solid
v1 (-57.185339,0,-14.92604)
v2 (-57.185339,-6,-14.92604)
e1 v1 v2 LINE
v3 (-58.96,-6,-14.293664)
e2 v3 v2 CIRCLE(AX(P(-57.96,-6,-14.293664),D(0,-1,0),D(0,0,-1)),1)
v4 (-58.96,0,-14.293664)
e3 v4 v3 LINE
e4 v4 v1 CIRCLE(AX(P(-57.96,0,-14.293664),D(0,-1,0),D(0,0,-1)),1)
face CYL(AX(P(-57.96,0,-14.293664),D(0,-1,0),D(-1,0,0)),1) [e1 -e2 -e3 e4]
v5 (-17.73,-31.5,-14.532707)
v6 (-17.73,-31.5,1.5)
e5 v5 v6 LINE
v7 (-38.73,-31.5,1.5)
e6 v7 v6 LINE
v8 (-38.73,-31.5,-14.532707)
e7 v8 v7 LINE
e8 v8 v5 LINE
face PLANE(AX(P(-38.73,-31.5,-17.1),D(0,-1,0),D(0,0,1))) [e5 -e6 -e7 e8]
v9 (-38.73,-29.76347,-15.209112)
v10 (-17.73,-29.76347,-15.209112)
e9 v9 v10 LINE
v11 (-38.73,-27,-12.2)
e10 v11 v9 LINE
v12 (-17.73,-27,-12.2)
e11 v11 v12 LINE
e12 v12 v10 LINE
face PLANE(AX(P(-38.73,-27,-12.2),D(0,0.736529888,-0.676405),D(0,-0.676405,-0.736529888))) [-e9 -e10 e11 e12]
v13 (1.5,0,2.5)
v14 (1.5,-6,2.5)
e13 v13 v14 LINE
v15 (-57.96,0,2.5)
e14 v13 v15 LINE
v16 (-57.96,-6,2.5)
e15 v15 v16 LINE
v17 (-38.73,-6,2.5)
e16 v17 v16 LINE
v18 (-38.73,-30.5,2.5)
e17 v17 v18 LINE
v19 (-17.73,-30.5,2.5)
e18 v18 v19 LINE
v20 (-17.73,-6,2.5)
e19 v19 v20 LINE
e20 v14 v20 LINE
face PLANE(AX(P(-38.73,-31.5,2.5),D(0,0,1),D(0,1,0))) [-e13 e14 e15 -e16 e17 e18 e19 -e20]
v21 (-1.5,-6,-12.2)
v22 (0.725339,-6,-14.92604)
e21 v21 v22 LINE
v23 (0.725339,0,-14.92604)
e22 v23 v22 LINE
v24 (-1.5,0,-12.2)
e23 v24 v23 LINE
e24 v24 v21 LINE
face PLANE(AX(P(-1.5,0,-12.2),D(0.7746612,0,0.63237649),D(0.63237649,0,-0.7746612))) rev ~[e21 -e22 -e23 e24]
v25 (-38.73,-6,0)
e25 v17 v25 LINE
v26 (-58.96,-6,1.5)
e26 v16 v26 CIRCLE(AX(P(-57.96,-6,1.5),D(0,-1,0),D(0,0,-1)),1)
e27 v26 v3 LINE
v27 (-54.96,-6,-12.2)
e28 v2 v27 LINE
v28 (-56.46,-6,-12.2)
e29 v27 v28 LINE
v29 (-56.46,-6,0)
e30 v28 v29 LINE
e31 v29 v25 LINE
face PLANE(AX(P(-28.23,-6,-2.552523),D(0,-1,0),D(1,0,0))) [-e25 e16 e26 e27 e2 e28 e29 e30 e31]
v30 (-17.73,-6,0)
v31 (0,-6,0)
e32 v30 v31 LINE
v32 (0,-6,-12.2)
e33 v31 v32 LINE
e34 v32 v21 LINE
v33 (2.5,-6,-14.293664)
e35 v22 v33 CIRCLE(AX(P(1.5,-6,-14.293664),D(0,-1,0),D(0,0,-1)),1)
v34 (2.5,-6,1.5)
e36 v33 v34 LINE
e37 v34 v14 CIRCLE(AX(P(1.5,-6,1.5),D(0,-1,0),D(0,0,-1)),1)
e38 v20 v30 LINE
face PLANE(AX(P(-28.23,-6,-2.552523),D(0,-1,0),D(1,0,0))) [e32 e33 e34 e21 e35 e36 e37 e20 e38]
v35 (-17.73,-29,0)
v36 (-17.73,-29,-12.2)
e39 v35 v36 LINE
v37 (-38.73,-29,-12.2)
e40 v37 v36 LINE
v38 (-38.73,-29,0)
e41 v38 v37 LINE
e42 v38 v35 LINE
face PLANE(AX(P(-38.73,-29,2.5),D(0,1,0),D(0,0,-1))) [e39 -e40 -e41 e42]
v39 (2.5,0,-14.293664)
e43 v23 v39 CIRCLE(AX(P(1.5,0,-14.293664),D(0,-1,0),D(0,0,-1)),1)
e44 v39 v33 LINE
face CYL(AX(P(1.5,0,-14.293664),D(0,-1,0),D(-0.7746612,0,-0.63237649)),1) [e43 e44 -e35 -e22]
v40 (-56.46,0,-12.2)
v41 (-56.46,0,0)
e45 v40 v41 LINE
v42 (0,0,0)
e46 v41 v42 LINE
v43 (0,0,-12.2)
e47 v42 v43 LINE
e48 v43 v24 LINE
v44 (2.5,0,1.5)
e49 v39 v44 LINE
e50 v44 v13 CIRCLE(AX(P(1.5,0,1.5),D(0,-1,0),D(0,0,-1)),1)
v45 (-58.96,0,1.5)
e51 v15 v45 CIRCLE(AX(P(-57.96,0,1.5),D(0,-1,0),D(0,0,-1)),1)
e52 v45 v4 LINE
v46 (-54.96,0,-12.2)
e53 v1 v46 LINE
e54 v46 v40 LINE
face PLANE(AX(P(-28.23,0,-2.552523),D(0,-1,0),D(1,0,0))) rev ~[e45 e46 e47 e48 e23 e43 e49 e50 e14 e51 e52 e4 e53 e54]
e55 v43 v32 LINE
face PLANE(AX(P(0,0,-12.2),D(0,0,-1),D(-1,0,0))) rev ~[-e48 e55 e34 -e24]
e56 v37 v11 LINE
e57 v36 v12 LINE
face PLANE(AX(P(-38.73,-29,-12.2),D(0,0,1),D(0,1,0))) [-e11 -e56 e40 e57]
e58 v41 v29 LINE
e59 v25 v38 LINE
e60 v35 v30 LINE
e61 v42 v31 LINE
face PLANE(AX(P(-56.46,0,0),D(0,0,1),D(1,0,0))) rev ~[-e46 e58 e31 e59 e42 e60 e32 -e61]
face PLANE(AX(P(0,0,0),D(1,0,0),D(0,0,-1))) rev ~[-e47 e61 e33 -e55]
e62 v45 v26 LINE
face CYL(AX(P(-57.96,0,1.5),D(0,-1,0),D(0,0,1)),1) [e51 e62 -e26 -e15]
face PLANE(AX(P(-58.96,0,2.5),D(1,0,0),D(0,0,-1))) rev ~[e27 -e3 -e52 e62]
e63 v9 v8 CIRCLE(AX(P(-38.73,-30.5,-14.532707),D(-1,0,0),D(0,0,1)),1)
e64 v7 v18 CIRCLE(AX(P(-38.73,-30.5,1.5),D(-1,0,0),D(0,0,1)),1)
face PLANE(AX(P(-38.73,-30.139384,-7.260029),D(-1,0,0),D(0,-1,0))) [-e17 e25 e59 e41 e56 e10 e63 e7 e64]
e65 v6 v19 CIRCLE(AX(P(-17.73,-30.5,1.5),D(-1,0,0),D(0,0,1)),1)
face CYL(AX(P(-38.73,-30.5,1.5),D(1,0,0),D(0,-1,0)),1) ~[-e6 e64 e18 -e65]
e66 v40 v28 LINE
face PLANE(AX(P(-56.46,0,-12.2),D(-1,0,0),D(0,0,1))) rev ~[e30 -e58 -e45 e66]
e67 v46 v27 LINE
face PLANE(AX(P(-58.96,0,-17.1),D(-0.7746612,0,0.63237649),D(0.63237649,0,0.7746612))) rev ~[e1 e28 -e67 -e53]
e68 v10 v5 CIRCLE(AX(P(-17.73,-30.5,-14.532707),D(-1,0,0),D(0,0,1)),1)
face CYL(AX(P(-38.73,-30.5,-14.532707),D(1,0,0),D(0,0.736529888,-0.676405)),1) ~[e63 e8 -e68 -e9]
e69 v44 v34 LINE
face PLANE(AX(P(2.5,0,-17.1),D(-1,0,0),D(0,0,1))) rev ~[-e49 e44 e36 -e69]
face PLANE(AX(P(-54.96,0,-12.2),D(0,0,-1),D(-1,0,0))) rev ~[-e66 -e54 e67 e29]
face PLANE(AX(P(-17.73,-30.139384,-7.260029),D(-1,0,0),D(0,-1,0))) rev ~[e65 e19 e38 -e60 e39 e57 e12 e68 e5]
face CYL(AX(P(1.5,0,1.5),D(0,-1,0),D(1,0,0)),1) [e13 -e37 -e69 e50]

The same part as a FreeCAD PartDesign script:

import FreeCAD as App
import Part
import Sketcher


def edges_at(feature, points):
    """Names of the edges that pass closest to the given points."""
    edges = feature.Shape.Edges
    near = lambda p: min(range(len(edges)), key=lambda i: edges[i].distToShape(Part.Vertex(*p))[0])
    return sorted({f"Edge{near(p) + 1}" for p in points})

doc = App.newDocument("Part")
body = doc.addObject("PartDesign::Body", "Body")

sketch1 = body.newObject("Sketcher::SketchObject", "Sketch")
sketch1.AttachmentSupport = (doc.getObject("XZ_Plane"), [""])
sketch1.MapMode = "FlatFace"
sketch1.addGeometry(Part.LineSegment(App.Vector(0, 0, 0), App.Vector(0, -12.2, 0)), False)
sketch1.addGeometry(Part.LineSegment(App.Vector(0, -12.2, 0), App.Vector(-1.5, -12.2, 0)), False)
sketch1.addGeometry(Part.LineSegment(App.Vector(-1.5, -12.2, 0), App.Vector(2.5, -17.1, 0)), False)
sketch1.addGeometry(Part.LineSegment(App.Vector(2.5, -17.1, 0), App.Vector(2.5, 2.5, 0)), False)
sketch1.addGeometry(Part.LineSegment(App.Vector(2.5, 2.5, 0), App.Vector(-58.96, 2.5, 0)), False)
sketch1.addGeometry(Part.LineSegment(App.Vector(-58.96, 2.5, 0), App.Vector(-58.96, -17.1, 0)), False)
sketch1.addGeometry(Part.LineSegment(App.Vector(-58.96, -17.1, 0), App.Vector(-54.96, -12.2, 0)), False)
sketch1.addGeometry(Part.LineSegment(App.Vector(-54.96, -12.2, 0), App.Vector(-56.46, -12.2, 0)), False)
sketch1.addGeometry(Part.LineSegment(App.Vector(-56.46, -12.2, 0), App.Vector(-56.46, 0, 0)), False)
sketch1.addGeometry(Part.LineSegment(App.Vector(-56.46, 0, 0), App.Vector(0, 0, 0)), False)
sketch1.addConstraint(Sketcher.Constraint("Coincident", 0, 2, 1, 1))
sketch1.addConstraint(Sketcher.Constraint("Coincident", 1, 2, 2, 1))
sketch1.addConstraint(Sketcher.Constraint("Coincident", 2, 2, 3, 1))
sketch1.addConstraint(Sketcher.Constraint("Coincident", 3, 2, 4, 1))
sketch1.addConstraint(Sketcher.Constraint("Coincident", 4, 2, 5, 1))
sketch1.addConstraint(Sketcher.Constraint("Coincident", 5, 2, 6, 1))
sketch1.addConstraint(Sketcher.Constraint("Coincident", 6, 2, 7, 1))
sketch1.addConstraint(Sketcher.Constraint("Coincident", 7, 2, 8, 1))
sketch1.addConstraint(Sketcher.Constraint("Coincident", 8, 2, 9, 1))
sketch1.addConstraint(Sketcher.Constraint("Coincident", 9, 2, 0, 1))
sketch1.addConstraint(Sketcher.Constraint("Vertical", 0))
sketch1.addConstraint(Sketcher.Constraint("Horizontal", 1))
sketch1.addConstraint(Sketcher.Constraint("Vertical", 3))
sketch1.addConstraint(Sketcher.Constraint("Horizontal", 4))
sketch1.addConstraint(Sketcher.Constraint("Vertical", 5))
sketch1.addConstraint(Sketcher.Constraint("Horizontal", 7))
sketch1.addConstraint(Sketcher.Constraint("Vertical", 8))
sketch1.addConstraint(Sketcher.Constraint("Horizontal", 9))
sketch1.addConstraint(Sketcher.Constraint("Coincident", 9, 2, -1, 1))
sketch1.addConstraint(Sketcher.Constraint("Horizontal", 2, 2, 5, 2))
sketch1.addConstraint(Sketcher.Constraint("Horizontal", 1, 2, 6, 2))
sketch1.addConstraint(Sketcher.Constraint("Equal", 1, 7))
sketch1.addConstraint(Sketcher.Constraint("Equal", 2, 6))
sketch1.addConstraint(Sketcher.Constraint("DistanceX", 1, 2, 1, 1, 1.5))
sketch1.addConstraint(Sketcher.Constraint("DistanceY", 0, 2, 0, 1, 12.2))
sketch1.addConstraint(Sketcher.Constraint("DistanceY", 3, 1, 3, 2, 19.6))
sketch1.addConstraint(Sketcher.Constraint("DistanceX", 1, 2, 2, 2, 4.0))
sketch1.addConstraint(Sketcher.Constraint("DistanceX", 4, 2, 4, 1, 61.46))
sketch1.addConstraint(Sketcher.Constraint("DistanceY", 2, 2, -1, 1, 17.1))
pad1 = body.newObject("PartDesign::Pad", "Pad")
pad1.Profile = sketch1
pad1.Length = 6
doc.recompute()

fillet = body.newObject("PartDesign::Fillet", "Fillet")
fillet.Base = (pad1, edges_at(pad1, [
    (-58.96, -3, -17.1),
    (2.5, -3, -17.1),
    (-58.96, -3, 2.5),
    (2.5, -3, 2.5),
]))
fillet.Radius = 1

sketch2 = body.newObject("Sketcher::SketchObject", "Sketch001")
sketch2.AttachmentSupport = (doc.getObject("XY_Plane"), [""])
sketch2.MapMode = "FlatFace"
sketch2.AttachmentOffset = App.Placement(App.Vector(0, 0, 2.5), App.Rotation())
sketch2.addGeometry(Part.LineSegment(App.Vector(-17.73, -6, 0), App.Vector(-38.73, -6, 0)), False)
sketch2.addGeometry(Part.LineSegment(App.Vector(-38.73, -6, 0), App.Vector(-38.73, -29, 0)), False)
sketch2.addGeometry(Part.LineSegment(App.Vector(-38.73, -29, 0), App.Vector(-17.73, -29, 0)), False)
sketch2.addGeometry(Part.LineSegment(App.Vector(-17.73, -29, 0), App.Vector(-17.73, -6, 0)), False)
sketch2.addConstraint(Sketcher.Constraint("Coincident", 0, 2, 1, 1))
sketch2.addConstraint(Sketcher.Constraint("Coincident", 1, 2, 2, 1))
sketch2.addConstraint(Sketcher.Constraint("Coincident", 2, 2, 3, 1))
sketch2.addConstraint(Sketcher.Constraint("Coincident", 3, 2, 0, 1))
sketch2.addConstraint(Sketcher.Constraint("Horizontal", 0))
sketch2.addConstraint(Sketcher.Constraint("Vertical", 1))
sketch2.addConstraint(Sketcher.Constraint("Horizontal", 2))
sketch2.addConstraint(Sketcher.Constraint("Vertical", 3))
sketch2.addConstraint(Sketcher.Constraint("DistanceX", 0, 2, 0, 1, 21.0))
sketch2.addConstraint(Sketcher.Constraint("DistanceY", 1, 2, 1, 1, 23.0))
sketch2.addConstraint(Sketcher.Constraint("DistanceY", 0, 2, -1, 1, 6.0))
sketch2.addConstraint(Sketcher.Constraint("DistanceX", 0, 2, -1, 1, 38.73))
pad2 = body.newObject("PartDesign::Pad", "Pad001")
pad2.Profile = sketch2
pad2.Length = 2.5
pad2.Reversed = True

sketch3 = body.newObject("Sketcher::SketchObject", "Sketch002")
sketch3.AttachmentSupport = (doc.getObject("YZ_Plane"), [""])
sketch3.MapMode = "FlatFace"
sketch3.AttachmentOffset = App.Placement(App.Vector(0, 0, -38.73), App.Rotation())
sketch3.addGeometry(Part.LineSegment(App.Vector(-31.5, 2.5, 0), App.Vector(-29, 2.5, 0)), False)
sketch3.addGeometry(Part.LineSegment(App.Vector(-29, 2.5, 0), App.Vector(-29, -12.2, 0)), False)
sketch3.addGeometry(Part.LineSegment(App.Vector(-29, -12.2, 0), App.Vector(-27, -12.2, 0)), False)
sketch3.addGeometry(Part.LineSegment(App.Vector(-27, -12.2, 0), App.Vector(-31.5, -17.1, 0)), False)
sketch3.addGeometry(Part.LineSegment(App.Vector(-31.5, -17.1, 0), App.Vector(-31.5, 2.5, 0)), False)
sketch3.addConstraint(Sketcher.Constraint("Coincident", 0, 2, 1, 1))
sketch3.addConstraint(Sketcher.Constraint("Coincident", 1, 2, 2, 1))
sketch3.addConstraint(Sketcher.Constraint("Coincident", 2, 2, 3, 1))
sketch3.addConstraint(Sketcher.Constraint("Coincident", 3, 2, 4, 1))
sketch3.addConstraint(Sketcher.Constraint("Coincident", 4, 2, 0, 1))
sketch3.addConstraint(Sketcher.Constraint("Horizontal", 0))
sketch3.addConstraint(Sketcher.Constraint("Vertical", 1))
sketch3.addConstraint(Sketcher.Constraint("Horizontal", 2))
sketch3.addConstraint(Sketcher.Constraint("Vertical", 4))
sketch3.addConstraint(Sketcher.Constraint("DistanceX", 2, 1, 2, 2, 2.0))
sketch3.addConstraint(Sketcher.Constraint("DistanceX", 0, 1, 0, 2, 2.5))
sketch3.addConstraint(Sketcher.Constraint("DistanceY", 1, 2, 1, 1, 14.7))
sketch3.addConstraint(Sketcher.Constraint("DistanceY", 4, 1, 4, 2, 19.6))
sketch3.addConstraint(Sketcher.Constraint("DistanceX", 0, 2, -1, 1, 29.0))
sketch3.addConstraint(Sketcher.Constraint("DistanceY", -1, 1, 0, 2, 2.5))
pad3 = body.newObject("PartDesign::Pad", "Pad002")
pad3.Profile = sketch3
pad3.Length = 21
doc.recompute()

fillet2 = body.newObject("PartDesign::Fillet", "Fillet001")
fillet2.Base = (pad3, edges_at(pad3, [(-28.23, -31.5, -17.1)]))
fillet2.Radius = 1
doc.recompute()

fillet3 = body.newObject("PartDesign::Fillet", "Fillet002")
fillet3.Base = (fillet2, edges_at(fillet2, [(-28.23, -31.5, 2.5)]))
fillet3.Radius = 1

doc.recompute()
